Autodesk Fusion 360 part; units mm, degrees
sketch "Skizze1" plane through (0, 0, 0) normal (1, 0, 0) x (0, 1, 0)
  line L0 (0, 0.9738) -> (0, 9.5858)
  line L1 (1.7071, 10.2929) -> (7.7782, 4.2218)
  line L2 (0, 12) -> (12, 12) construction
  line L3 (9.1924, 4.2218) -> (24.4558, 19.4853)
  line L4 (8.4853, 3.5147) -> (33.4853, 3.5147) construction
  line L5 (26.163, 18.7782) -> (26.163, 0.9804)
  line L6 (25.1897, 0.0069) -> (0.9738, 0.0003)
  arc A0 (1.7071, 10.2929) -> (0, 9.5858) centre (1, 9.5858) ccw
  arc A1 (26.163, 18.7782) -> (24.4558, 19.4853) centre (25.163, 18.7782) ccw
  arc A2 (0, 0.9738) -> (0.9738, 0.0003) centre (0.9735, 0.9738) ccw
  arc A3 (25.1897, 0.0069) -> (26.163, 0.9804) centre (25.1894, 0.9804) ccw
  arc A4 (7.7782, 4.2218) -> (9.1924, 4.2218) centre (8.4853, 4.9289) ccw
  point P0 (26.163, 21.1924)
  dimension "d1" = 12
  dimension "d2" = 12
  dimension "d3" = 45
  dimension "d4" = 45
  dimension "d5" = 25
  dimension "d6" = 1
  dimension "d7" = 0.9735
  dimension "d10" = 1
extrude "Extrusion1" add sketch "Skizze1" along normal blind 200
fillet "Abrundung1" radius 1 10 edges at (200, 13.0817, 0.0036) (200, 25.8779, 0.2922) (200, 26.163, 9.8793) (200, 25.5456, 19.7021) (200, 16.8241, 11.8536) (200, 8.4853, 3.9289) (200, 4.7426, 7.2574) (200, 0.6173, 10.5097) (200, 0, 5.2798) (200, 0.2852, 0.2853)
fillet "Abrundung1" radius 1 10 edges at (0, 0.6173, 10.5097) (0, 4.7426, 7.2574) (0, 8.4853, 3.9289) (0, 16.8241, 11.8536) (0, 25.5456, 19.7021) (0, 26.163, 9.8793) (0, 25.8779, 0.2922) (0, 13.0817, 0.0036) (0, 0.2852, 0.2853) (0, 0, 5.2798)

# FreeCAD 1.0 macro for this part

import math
import FreeCAD as App
import Part
import Sketcher

V = App.Vector
Q = App.Units.Quantity


def edges_at(feature, points):
    """Names of the edges that pass closest to the given points."""
    edges = feature.Shape.Edges
    near = lambda p: min(range(len(edges)), key=lambda i: edges[i].distToShape(Part.Vertex(*p))[0])
    return sorted({f"Edge{near(p) + 1}" for p in points})

doc = App.newDocument("Part")
body = doc.addObject("PartDesign::Body", "Body")

# Sketch on YZ plane
sketch1 = body.newObject("Sketcher::SketchObject", "Sketch")
sketch1.AttachmentSupport = (doc.getObject("YZ_Plane"), [""])
sketch1.MapMode = "FlatFace"
sketch1.addGeometry([
    Part.LineSegment(V(0, 9.6, 0), V(0, 1, 0)),  # 0
    Part.ArcOfCircle(Part.Circle(V(1, 1, 0), V(0, 0, 1), 1), math.radians(180), math.radians(270)),  # 1
    Part.LineSegment(V(1, 0, 0), V(25.2, 0, 0)),  # 2
    Part.ArcOfCircle(Part.Circle(V(25.2, 1, 0), V(0, 0, 1), 1), math.radians(-90), math.radians(0)),  # 3
    Part.LineSegment(V(26.2, 1, 0), V(26.2, 18.8, 0)),  # 4
    Part.ArcOfCircle(Part.Circle(V(25.2, 18.8, 0), V(0, 0, 1), 1), math.radians(0), math.radians(135)),  # 5
    Part.LineSegment(V(24.5, 19.5, 0), V(9.2, 4.2, 0)),  # 6
    Part.ArcOfCircle(Part.Circle(V(8.5, 4.9, 0), V(0, 0, 1), 1), math.radians(-135), math.radians(-45)),  # 7
    Part.LineSegment(V(7.8, 4.2, 0), V(1.7, 10.3, 0)),  # 8
    Part.ArcOfCircle(Part.Circle(V(1, 9.6, 0), V(0, 0, 1), 1), math.radians(45), math.radians(180)),  # 9
], False)
sketch1.addConstraint([
    Sketcher.Constraint("Tangent", 0, 2, 1, 1),
    Sketcher.Constraint("Tangent", 1, 2, 2, 1),
    Sketcher.Constraint("Tangent", 2, 2, 3, 1),
    Sketcher.Constraint("Tangent", 3, 2, 4, 1),
    Sketcher.Constraint("Tangent", 4, 2, 5, 1),
    Sketcher.Constraint("Tangent", 5, 2, 6, 1),
    Sketcher.Constraint("Tangent", 6, 2, 7, 2),
    Sketcher.Constraint("Tangent", 7, 1, 8, 1),
    Sketcher.Constraint("Tangent", 8, 2, 9, 1),
    Sketcher.Constraint("Tangent", 9, 2, 0, 1),
    Sketcher.Constraint("Vertical", 0),
    Sketcher.Constraint("Vertical", 4),
    Sketcher.Constraint("Equal", 1, 3),
    Sketcher.Constraint("Equal", 5, 7),
    Sketcher.Constraint("Equal", 7, 9),
    Sketcher.Constraint("PointOnObject", 0, 2, -2),
    Sketcher.Constraint("Perpendicular", 6, 8),
    Sketcher.Constraint("Horizontal", 6, 2, 7, 1),
    Sketcher.Constraint("Radius", 5, Q("1 mm")),
    Sketcher.Constraint("Radius", 1, Q("0.9735 mm")),
    Sketcher.Constraint("DistanceY", -1, 1, 1, 3, Q("0.9738 mm")),
    Sketcher.Constraint("DistanceX", -1, 1, 1, 2, Q("0.9738 mm")),
    Sketcher.Constraint("DistanceY", 0, 2, 0, 1, Q("8.612 mm")),
    Sketcher.Constraint("Distance", 2, Q("24.216 mm")),
    Sketcher.Constraint("DistanceY", 4, 1, 4, 2, Q("17.7978 mm")),
])
pad1 = body.newObject("PartDesign::Pad", "Pad")
pad1.Profile = sketch1
pad1.Length = 200
doc.recompute()

fillet = body.newObject("PartDesign::Fillet", "Fillet")
fillet.Base = (pad1, edges_at(pad1, [
    (200, 13.082, 0.004),
    (200, 25.878, 0.292),
    (200, 26.163, 9.879),
    (200, 25.546, 19.702),
    (200, 16.824, 11.854),
    (200, 8.485, 3.929),
    (200, 4.743, 7.257),
    (200, 0.617, 10.51),
    (200, 0, 5.28),
    (200, 0.285, 0.285),
]))
fillet.Radius = 1
doc.recompute()

fillet2 = body.newObject("PartDesign::Fillet", "Fillet001")
fillet2.Base = (fillet, edges_at(fillet, [
    (0, 0.617, 10.51),
    (0, 4.743, 7.257),
    (0, 8.485, 3.929),
    (0, 16.824, 11.854),
    (0, 25.546, 19.702),
    (0, 26.163, 9.879),
    (0, 25.878, 0.292),
    (0, 13.082, 0.004),
    (0, 0.285, 0.285),
    (0, 0, 5.28),
]))
fillet2.Radius = 1

doc.recompute()
